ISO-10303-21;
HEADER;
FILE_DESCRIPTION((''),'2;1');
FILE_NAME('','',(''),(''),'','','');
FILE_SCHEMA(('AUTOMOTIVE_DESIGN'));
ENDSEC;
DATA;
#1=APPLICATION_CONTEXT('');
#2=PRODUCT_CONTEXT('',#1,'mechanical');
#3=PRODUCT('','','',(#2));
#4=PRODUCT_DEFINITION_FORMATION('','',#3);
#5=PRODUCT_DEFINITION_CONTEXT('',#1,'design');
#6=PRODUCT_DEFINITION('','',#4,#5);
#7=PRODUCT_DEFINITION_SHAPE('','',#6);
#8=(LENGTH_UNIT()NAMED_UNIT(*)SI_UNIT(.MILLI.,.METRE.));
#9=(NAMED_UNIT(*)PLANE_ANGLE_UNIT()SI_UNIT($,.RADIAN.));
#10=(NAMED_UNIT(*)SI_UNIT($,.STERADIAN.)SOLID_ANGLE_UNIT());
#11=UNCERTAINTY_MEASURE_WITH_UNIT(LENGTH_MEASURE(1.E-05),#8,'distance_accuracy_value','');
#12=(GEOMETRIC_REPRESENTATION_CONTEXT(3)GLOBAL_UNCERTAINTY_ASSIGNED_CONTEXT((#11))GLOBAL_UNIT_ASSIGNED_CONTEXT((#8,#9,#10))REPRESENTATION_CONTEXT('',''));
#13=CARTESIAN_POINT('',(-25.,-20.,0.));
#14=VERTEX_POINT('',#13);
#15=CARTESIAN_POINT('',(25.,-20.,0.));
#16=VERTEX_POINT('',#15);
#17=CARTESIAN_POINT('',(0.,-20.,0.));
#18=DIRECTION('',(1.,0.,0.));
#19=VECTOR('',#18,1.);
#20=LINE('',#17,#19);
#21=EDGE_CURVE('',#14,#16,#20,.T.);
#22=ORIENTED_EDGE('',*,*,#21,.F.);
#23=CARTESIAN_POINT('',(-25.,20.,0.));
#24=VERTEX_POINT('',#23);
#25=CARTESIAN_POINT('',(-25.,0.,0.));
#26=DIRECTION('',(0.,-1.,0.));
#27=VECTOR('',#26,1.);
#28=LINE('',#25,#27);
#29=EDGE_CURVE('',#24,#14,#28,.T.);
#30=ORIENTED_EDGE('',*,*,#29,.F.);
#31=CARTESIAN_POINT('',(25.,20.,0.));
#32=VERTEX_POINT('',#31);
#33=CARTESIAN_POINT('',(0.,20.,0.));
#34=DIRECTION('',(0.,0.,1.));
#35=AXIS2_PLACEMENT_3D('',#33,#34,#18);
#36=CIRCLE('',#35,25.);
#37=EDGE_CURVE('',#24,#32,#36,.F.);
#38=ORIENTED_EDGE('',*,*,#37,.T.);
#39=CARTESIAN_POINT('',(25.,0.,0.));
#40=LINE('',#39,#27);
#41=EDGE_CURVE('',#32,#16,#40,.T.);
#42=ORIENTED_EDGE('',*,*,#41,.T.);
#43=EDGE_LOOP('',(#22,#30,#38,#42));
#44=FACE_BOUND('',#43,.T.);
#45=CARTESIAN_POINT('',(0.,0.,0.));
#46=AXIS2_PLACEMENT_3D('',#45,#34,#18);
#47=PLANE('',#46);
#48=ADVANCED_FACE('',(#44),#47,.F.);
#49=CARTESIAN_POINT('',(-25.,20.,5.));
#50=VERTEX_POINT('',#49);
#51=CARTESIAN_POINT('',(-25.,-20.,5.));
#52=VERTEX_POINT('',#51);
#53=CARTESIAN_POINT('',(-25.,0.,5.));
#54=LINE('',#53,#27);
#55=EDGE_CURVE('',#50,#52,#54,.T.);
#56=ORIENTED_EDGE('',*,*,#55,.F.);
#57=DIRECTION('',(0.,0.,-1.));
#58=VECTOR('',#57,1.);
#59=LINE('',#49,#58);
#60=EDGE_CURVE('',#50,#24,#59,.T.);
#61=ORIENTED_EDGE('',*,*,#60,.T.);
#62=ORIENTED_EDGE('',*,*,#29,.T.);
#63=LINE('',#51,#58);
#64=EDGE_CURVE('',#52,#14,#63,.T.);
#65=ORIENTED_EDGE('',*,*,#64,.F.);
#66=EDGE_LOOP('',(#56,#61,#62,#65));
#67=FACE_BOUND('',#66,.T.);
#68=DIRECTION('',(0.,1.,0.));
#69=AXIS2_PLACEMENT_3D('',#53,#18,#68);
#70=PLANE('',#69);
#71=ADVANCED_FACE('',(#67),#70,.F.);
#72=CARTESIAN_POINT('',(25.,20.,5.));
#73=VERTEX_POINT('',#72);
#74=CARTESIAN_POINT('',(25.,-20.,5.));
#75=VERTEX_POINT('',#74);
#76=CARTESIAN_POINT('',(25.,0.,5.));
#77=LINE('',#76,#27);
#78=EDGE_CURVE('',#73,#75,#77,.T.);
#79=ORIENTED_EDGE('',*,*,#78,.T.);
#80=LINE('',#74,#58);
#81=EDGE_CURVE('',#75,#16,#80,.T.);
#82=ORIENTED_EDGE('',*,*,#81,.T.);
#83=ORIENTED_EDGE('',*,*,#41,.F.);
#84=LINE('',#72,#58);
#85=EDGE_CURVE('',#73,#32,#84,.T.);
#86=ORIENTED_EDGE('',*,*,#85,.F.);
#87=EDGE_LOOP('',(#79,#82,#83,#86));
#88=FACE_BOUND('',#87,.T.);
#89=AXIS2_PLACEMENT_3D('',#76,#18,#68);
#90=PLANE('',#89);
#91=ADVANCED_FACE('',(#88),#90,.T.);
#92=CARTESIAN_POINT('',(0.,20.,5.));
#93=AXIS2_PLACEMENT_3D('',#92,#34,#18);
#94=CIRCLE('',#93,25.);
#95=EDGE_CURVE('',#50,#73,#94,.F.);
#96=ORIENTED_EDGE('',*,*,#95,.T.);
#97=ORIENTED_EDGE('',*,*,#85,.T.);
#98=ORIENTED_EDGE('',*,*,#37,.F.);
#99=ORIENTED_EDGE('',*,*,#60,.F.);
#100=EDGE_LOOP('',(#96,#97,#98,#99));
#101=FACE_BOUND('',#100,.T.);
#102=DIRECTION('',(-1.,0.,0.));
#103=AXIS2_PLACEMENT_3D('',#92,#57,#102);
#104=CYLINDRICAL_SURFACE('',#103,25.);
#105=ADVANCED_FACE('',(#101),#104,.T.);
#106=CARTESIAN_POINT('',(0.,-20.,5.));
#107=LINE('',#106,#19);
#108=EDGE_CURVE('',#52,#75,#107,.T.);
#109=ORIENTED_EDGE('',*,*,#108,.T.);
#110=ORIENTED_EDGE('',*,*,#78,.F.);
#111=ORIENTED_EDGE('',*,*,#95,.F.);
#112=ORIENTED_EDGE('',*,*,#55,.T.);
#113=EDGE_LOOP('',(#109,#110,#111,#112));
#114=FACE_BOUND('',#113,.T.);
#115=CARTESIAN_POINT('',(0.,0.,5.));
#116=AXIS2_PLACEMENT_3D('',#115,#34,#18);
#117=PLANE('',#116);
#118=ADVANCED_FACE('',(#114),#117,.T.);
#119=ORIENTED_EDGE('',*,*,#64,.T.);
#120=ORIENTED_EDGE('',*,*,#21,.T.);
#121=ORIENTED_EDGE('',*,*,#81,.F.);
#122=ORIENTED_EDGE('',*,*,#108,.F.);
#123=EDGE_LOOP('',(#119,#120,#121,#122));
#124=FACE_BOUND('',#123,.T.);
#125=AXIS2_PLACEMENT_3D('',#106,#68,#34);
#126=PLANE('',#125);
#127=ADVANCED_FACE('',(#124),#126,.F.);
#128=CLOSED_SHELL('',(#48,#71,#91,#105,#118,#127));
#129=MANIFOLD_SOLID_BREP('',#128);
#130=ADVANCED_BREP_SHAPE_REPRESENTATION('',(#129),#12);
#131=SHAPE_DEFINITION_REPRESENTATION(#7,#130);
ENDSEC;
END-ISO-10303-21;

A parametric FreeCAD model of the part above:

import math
import FreeCAD as App
import Part
import Sketcher
from FreeCAD import Vector

doc = App.newDocument("Part")
body = doc.addObject("PartDesign::Body", "Body")

# Sketch on XY plane
sketch1 = body.newObject("Sketcher::SketchObject", "Sketch")
sketch1.AttachmentSupport = (doc.getObject("XY_Plane"), [""])
sketch1.MapMode = "FlatFace"
sketch1.addGeometry(Part.LineSegment(Vector(-25, 20, 0), Vector(-25, -20, 0)), False)
sketch1.addGeometry(Part.LineSegment(Vector(-25, -20, 0), Vector(25, -20, 0)), False)
sketch1.addGeometry(Part.LineSegment(Vector(25, -20, 0), Vector(25, 20, 0)), False)
sketch1.addGeometry(Part.ArcOfCircle(Part.Circle(Vector(0, 20, 0), Vector(0, 0, 1), 25), math.radians(0), math.radians(180)), False)
sketch1.addConstraint(Sketcher.Constraint("Coincident", 0, 2, 1, 1))
sketch1.addConstraint(Sketcher.Constraint("Coincident", 1, 2, 2, 1))
sketch1.addConstraint(Sketcher.Constraint("Tangent", 2, 2, 3, 1))
sketch1.addConstraint(Sketcher.Constraint("Tangent", 3, 2, 0, 1))
sketch1.addConstraint(Sketcher.Constraint("Vertical", 0))
sketch1.addConstraint(Sketcher.Constraint("Horizontal", 1))
sketch1.addConstraint(Sketcher.Constraint("Vertical", 2))
sketch1.addConstraint(Sketcher.Constraint("Symmetric", 0, 2, 2, 2, -1, 1))
sketch1.addConstraint(Sketcher.Constraint("Radius", 3, 25.0))
sketch1.addConstraint(Sketcher.Constraint("DistanceY", 0, 2, 0, 1, 40.0))
pad1 = body.newObject("PartDesign::Pad", "Pad")
pad1.Profile = sketch1
pad1.Length = 5

doc.recompute()
